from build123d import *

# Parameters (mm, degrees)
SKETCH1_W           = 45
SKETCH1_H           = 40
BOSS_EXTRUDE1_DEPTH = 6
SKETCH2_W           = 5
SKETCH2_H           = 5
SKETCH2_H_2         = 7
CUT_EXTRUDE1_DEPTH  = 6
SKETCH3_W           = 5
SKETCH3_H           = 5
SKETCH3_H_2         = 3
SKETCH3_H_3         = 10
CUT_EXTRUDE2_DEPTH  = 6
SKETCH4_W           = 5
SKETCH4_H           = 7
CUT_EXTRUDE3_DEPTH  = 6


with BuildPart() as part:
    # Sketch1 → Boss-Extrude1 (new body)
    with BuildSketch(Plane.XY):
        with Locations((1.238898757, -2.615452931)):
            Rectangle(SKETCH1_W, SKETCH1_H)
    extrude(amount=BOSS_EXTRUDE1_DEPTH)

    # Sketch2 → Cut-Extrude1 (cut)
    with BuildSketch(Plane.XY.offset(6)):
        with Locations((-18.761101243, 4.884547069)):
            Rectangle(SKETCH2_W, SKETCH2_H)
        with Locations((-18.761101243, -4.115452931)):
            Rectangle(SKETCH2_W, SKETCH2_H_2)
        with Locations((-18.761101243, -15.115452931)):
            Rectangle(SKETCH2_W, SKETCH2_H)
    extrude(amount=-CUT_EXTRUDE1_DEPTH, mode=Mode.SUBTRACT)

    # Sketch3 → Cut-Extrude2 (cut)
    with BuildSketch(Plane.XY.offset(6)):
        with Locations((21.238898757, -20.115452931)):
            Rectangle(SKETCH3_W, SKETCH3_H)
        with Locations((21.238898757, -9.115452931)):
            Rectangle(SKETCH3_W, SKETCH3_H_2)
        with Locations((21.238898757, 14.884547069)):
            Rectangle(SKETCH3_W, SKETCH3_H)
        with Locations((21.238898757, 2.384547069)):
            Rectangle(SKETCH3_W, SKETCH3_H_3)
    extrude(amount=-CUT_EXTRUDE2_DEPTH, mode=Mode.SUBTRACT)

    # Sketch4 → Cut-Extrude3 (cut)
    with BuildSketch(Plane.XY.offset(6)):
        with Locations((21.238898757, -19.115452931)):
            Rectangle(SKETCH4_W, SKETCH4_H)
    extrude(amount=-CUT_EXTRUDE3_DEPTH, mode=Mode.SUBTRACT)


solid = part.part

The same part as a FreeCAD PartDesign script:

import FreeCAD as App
import Part
import Sketcher
from FreeCAD import Vector

doc = App.newDocument("Part")
body = doc.addObject("PartDesign::Body", "Body")

# Sketch on XY plane
sketch1 = body.newObject("Sketcher::SketchObject", "Sketch")
sketch1.AttachmentSupport = (doc.getObject("XY_Plane"), [""])
sketch1.MapMode = "FlatFace"
sketch1.addGeometry([
    Part.LineSegment(Vector(-21.261101, 17.384547, 0), Vector(-21.261101, -22.615453, 0)),
    Part.LineSegment(Vector(-21.261101, -22.615453, 0), Vector(23.738899, -22.615453, 0)),
    Part.LineSegment(Vector(23.738899, -22.615453, 0), Vector(23.738899, 17.384547, 0)),
    Part.LineSegment(Vector(23.738899, 17.384547, 0), Vector(-21.261101, 17.384547, 0)),
], False)
sketch1.addConstraint([
    Sketcher.Constraint("Coincident", 0, 2, 1, 1),
    Sketcher.Constraint("Coincident", 1, 2, 2, 1),
    Sketcher.Constraint("Coincident", 2, 2, 3, 1),
    Sketcher.Constraint("Coincident", 3, 2, 0, 1),
    Sketcher.Constraint("Vertical", 0),
    Sketcher.Constraint("Horizontal", 1),
    Sketcher.Constraint("Vertical", 2),
    Sketcher.Constraint("Horizontal", 3),
    Sketcher.Constraint("DistanceX", 1, 1, 1, 2, 45.0),
    Sketcher.Constraint("DistanceY", 0, 2, 0, 1, 40.0),
    Sketcher.Constraint("DistanceX", 0, 2, -1, 1, 21.261101),
    Sketcher.Constraint("DistanceY", 0, 2, -1, 1, 22.615453),
])
pad1 = body.newObject("PartDesign::Pad", "Pad")
pad1.Profile = sketch1
pad1.Length = 6

# Sketch on XY plane
sketch2 = body.newObject("Sketcher::SketchObject", "Sketch001")
sketch2.AttachmentSupport = (doc.getObject("XY_Plane"), [""])
sketch2.MapMode = "FlatFace"
sketch2.AttachmentOffset = App.Placement(Vector(0, 0, 6), App.Rotation())
sketch2.addGeometry([
    Part.LineSegment(Vector(-21.261101, 7.384547, 0), Vector(-21.261101, 2.384547, 0)),  # 0
    Part.LineSegment(Vector(-21.261101, 2.384547, 0), Vector(-16.261101, 2.384547, 0)),  # 1
    Part.LineSegment(Vector(-16.261101, 2.384547, 0), Vector(-16.261101, 7.384547, 0)),  # 2
    Part.LineSegment(Vector(-16.261101, 7.384547, 0), Vector(-21.261101, 7.384547, 0)),  # 3
    Part.LineSegment(Vector(-21.261101, -0.615453, 0), Vector(-21.261101, -7.615453, 0)),  # 4
    Part.LineSegment(Vector(-21.261101, -7.615453, 0), Vector(-16.261101, -7.615453, 0)),  # 5
    Part.LineSegment(Vector(-16.261101, -7.615453, 0), Vector(-16.261101, -0.615453, 0)),  # 6
    Part.LineSegment(Vector(-16.261101, -0.615453, 0), Vector(-21.261101, -0.615453, 0)),  # 7
    Part.LineSegment(Vector(-21.261101, -12.615453, 0), Vector(-21.261101, -17.615453, 0)),  # 8
    Part.LineSegment(Vector(-21.261101, -17.615453, 0), Vector(-16.261101, -17.615453, 0)),  # 9
    Part.LineSegment(Vector(-16.261101, -17.615453, 0), Vector(-16.261101, -12.615453, 0)),  # 10
    Part.LineSegment(Vector(-16.261101, -12.615453, 0), Vector(-21.261101, -12.615453, 0)),  # 11
], False)
sketch2.addConstraint([
    Sketcher.Constraint("Coincident", 0, 2, 1, 1),
    Sketcher.Constraint("Coincident", 1, 2, 2, 1),
    Sketcher.Constraint("Coincident", 2, 2, 3, 1),
    Sketcher.Constraint("Coincident", 3, 2, 0, 1),
    Sketcher.Constraint("Coincident", 4, 2, 5, 1),
    Sketcher.Constraint("Coincident", 5, 2, 6, 1),
    Sketcher.Constraint("Coincident", 6, 2, 7, 1),
    Sketcher.Constraint("Coincident", 7, 2, 4, 1),
    Sketcher.Constraint("Coincident", 8, 2, 9, 1),
    Sketcher.Constraint("Coincident", 9, 2, 10, 1),
    Sketcher.Constraint("Coincident", 10, 2, 11, 1),
    Sketcher.Constraint("Coincident", 11, 2, 8, 1),
    Sketcher.Constraint("Vertical", 0),
    Sketcher.Constraint("Horizontal", 1),
    Sketcher.Constraint("Vertical", 2),
    Sketcher.Constraint("Horizontal", 3),
    Sketcher.Constraint("Vertical", 4),
    Sketcher.Constraint("Horizontal", 5),
    Sketcher.Constraint("Vertical", 6),
    Sketcher.Constraint("Horizontal", 7),
    Sketcher.Constraint("Vertical", 8),
    Sketcher.Constraint("Horizontal", 9),
    Sketcher.Constraint("Vertical", 10),
    Sketcher.Constraint("Horizontal", 11),
    Sketcher.Constraint("Vertical", 3, 2, 4, 2),
    Sketcher.Constraint("Vertical", 2, 2, 5, 2),
    Sketcher.Constraint("Vertical", 7, 2, 8, 2),
    Sketcher.Constraint("Vertical", 6, 2, 9, 2),
    Sketcher.Constraint("Equal", 11, 0),
    Sketcher.Constraint("Equal", 2, 8),
    Sketcher.Constraint("DistanceX", 1, 1, 1, 2, 5.0),
    Sketcher.Constraint("DistanceY", 4, 2, 4, 1, 7.0),
    Sketcher.Constraint("DistanceY", 4, 2, 0, 2, 10.0),
    Sketcher.Constraint("DistanceY", 8, 2, 4, 2, 10.0),
    Sketcher.Constraint("DistanceX", 0, 2, -1, 1, 21.261101),
    Sketcher.Constraint("DistanceY", -1, 1, 0, 2, 2.384547),
])
pocket1 = body.newObject("PartDesign::Pocket", "Pocket")
pocket1.Profile = sketch2
pocket1.Length = 6

# Sketch on XY plane
sketch3 = body.newObject("Sketcher::SketchObject", "Sketch002")
sketch3.AttachmentSupport = (doc.getObject("XY_Plane"), [""])
sketch3.MapMode = "FlatFace"
sketch3.AttachmentOffset = App.Placement(Vector(0, 0, 6), App.Rotation())
sketch3.addGeometry([
    Part.LineSegment(Vector(18.738899, -17.615453, 0), Vector(18.738899, -22.615453, 0)),  # 0
    Part.LineSegment(Vector(18.738899, -22.615453, 0), Vector(23.738899, -22.615453, 0)),  # 1
    Part.LineSegment(Vector(23.738899, -22.615453, 0), Vector(23.738899, -17.615453, 0)),  # 2
    Part.LineSegment(Vector(23.738899, -17.615453, 0), Vector(18.738899, -17.615453, 0)),  # 3
    Part.LineSegment(Vector(18.738899, -7.615453, 0), Vector(18.738899, -10.615453, 0)),  # 4
    Part.LineSegment(Vector(18.738899, -10.615453, 0), Vector(23.738899, -10.615453, 0)),  # 5
    Part.LineSegment(Vector(23.738899, -10.615453, 0), Vector(23.738899, -7.615453, 0)),  # 6
    Part.LineSegment(Vector(23.738899, -7.615453, 0), Vector(18.738899, -7.615453, 0)),  # 7
    Part.LineSegment(Vector(18.738899, 17.384547, 0), Vector(18.738899, 12.384547, 0)),  # 8
    Part.LineSegment(Vector(18.738899, 12.384547, 0), Vector(23.738899, 12.384547, 0)),  # 9
    Part.LineSegment(Vector(23.738899, 12.384547, 0), Vector(23.738899, 17.384547, 0)),  # 10
    Part.LineSegment(Vector(23.738899, 17.384547, 0), Vector(18.738899, 17.384547, 0)),  # 11
    Part.LineSegment(Vector(18.738899, 7.384547, 0), Vector(18.738899, -2.615453, 0)),  # 12
    Part.LineSegment(Vector(18.738899, -2.615453, 0), Vector(23.738899, -2.615453, 0)),  # 13
    Part.LineSegment(Vector(23.738899, -2.615453, 0), Vector(23.738899, 7.384547, 0)),  # 14
    Part.LineSegment(Vector(23.738899, 7.384547, 0), Vector(18.738899, 7.384547, 0)),  # 15
], False)
sketch3.addConstraint([
    Sketcher.Constraint("Coincident", 0, 2, 1, 1),
    Sketcher.Constraint("Coincident", 1, 2, 2, 1),
    Sketcher.Constraint("Coincident", 2, 2, 3, 1),
    Sketcher.Constraint("Coincident", 3, 2, 0, 1),
    Sketcher.Constraint("Coincident", 4, 2, 5, 1),
    Sketcher.Constraint("Coincident", 5, 2, 6, 1),
    Sketcher.Constraint("Coincident", 6, 2, 7, 1),
    Sketcher.Constraint("Coincident", 7, 2, 4, 1),
    Sketcher.Constraint("Coincident", 8, 2, 9, 1),
    Sketcher.Constraint("Coincident", 9, 2, 10, 1),
    Sketcher.Constraint("Coincident", 10, 2, 11, 1),
    Sketcher.Constraint("Coincident", 11, 2, 8, 1),
    Sketcher.Constraint("Coincident", 12, 2, 13, 1),
    Sketcher.Constraint("Coincident", 13, 2, 14, 1),
    Sketcher.Constraint("Coincident", 14, 2, 15, 1),
    Sketcher.Constraint("Coincident", 15, 2, 12, 1),
    Sketcher.Constraint("Vertical", 0),
    Sketcher.Constraint("Horizontal", 1),
    Sketcher.Constraint("Vertical", 2),
    Sketcher.Constraint("Horizontal", 3),
    Sketcher.Constraint("Vertical", 4),
    Sketcher.Constraint("Horizontal", 5),
    Sketcher.Constraint("Vertical", 6),
    Sketcher.Constraint("Horizontal", 7),
    Sketcher.Constraint("Vertical", 8),
    Sketcher.Constraint("Horizontal", 9),
    Sketcher.Constraint("Vertical", 10),
    Sketcher.Constraint("Horizontal", 11),
    Sketcher.Constraint("Vertical", 12),
    Sketcher.Constraint("Horizontal", 13),
    Sketcher.Constraint("Vertical", 14),
    Sketcher.Constraint("Horizontal", 15),
    Sketcher.Constraint("Vertical", 3, 2, 4, 2),
    Sketcher.Constraint("Vertical", 2, 2, 5, 2),
    Sketcher.Constraint("Vertical", 7, 2, 8, 2),
    Sketcher.Constraint("Vertical", 6, 2, 9, 2),
    Sketcher.Constraint("Vertical", 11, 2, 12, 2),
    Sketcher.Constraint("Vertical", 10, 2, 13, 2),
    Sketcher.Constraint("Equal", 15, 0),
    Sketcher.Constraint("Equal", 2, 8),
    Sketcher.Constraint("DistanceX", 1, 1, 1, 2, 5.0),
    Sketcher.Constraint("DistanceY", 4, 2, 4, 1, 3.0),
    Sketcher.Constraint("DistanceY", 12, 2, 12, 1, 10.0),
    Sketcher.Constraint("DistanceY", 3, 2, 4, 2, 7.0),
    Sketcher.Constraint("DistanceY", 7, 2, 8, 2, 20.0),
    Sketcher.Constraint("DistanceY", 7, 2, 12, 2, 5.0),
    Sketcher.Constraint("DistanceX", -1, 1, 0, 2, 18.738899),
    Sketcher.Constraint("DistanceY", 0, 2, -1, 1, 22.615453),
])
pocket2 = body.newObject("PartDesign::Pocket", "Pocket001")
pocket2.Profile = sketch3
pocket2.Length = 6

# Sketch on XY plane
sketch4 = body.newObject("Sketcher::SketchObject", "Sketch003")
sketch4.AttachmentSupport = (doc.getObject("XY_Plane"), [""])
sketch4.MapMode = "FlatFace"
sketch4.AttachmentOffset = App.Placement(Vector(0, 0, 6), App.Rotation())
sketch4.addGeometry([
    Part.LineSegment(Vector(18.738899, -15.615453, 0), Vector(18.738899, -22.615453, 0)),
    Part.LineSegment(Vector(18.738899, -22.615453, 0), Vector(23.738899, -22.615453, 0)),
    Part.LineSegment(Vector(23.738899, -22.615453, 0), Vector(23.738899, -15.615453, 0)),
    Part.LineSegment(Vector(23.738899, -15.615453, 0), Vector(18.738899, -15.615453, 0)),
], False)
sketch4.addConstraint([
    Sketcher.Constraint("Coincident", 0, 2, 1, 1),
    Sketcher.Constraint("Coincident", 1, 2, 2, 1),
    Sketcher.Constraint("Coincident", 2, 2, 3, 1),
    Sketcher.Constraint("Coincident", 3, 2, 0, 1),
    Sketcher.Constraint("Vertical", 0),
    Sketcher.Constraint("Horizontal", 1),
    Sketcher.Constraint("Vertical", 2),
    Sketcher.Constraint("Horizontal", 3),
    Sketcher.Constraint("DistanceX", 1, 1, 1, 2, 5.0),
    Sketcher.Constraint("DistanceY", 0, 2, 0, 1, 7.0),
    Sketcher.Constraint("DistanceX", -1, 1, 0, 2, 18.738899),
    Sketcher.Constraint("DistanceY", 0, 2, -1, 1, 22.615453),
])
pocket3 = body.newObject("PartDesign::Pocket", "Pocket002")
pocket3.Profile = sketch4
pocket3.Length = 6

doc.recompute()
